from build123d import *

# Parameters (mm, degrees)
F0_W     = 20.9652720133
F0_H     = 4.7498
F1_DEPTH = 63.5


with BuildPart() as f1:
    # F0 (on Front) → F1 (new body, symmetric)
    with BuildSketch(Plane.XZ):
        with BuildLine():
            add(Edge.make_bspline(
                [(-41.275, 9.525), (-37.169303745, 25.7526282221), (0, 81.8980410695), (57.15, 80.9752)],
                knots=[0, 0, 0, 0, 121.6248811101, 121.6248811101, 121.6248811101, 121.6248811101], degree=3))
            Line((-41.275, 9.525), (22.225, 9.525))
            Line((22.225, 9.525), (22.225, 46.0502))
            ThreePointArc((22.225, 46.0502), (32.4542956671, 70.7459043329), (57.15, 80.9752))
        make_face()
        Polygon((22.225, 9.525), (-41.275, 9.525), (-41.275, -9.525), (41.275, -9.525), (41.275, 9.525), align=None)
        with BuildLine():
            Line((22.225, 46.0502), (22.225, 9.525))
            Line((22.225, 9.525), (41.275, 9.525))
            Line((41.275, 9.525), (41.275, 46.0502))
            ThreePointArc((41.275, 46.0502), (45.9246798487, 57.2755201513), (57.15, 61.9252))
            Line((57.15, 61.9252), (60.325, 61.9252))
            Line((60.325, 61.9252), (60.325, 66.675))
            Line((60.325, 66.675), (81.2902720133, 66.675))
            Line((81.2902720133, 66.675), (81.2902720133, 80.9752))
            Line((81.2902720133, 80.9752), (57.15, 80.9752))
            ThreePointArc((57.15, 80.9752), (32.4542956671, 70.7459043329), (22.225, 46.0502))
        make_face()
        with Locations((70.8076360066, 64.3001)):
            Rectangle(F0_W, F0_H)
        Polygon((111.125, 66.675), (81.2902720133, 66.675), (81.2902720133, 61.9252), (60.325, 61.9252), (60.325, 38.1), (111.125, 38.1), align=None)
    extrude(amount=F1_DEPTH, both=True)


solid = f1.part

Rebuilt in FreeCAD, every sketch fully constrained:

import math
import FreeCAD as App
import Part
import Sketcher
from FreeCAD import Vector
Q = App.Units.Quantity

doc = App.newDocument("Part")
params = doc.addObject("Spreadsheet::Sheet", "Params")
for row, (alias, value) in enumerate([
    ("sketch1_width", "2 in"),
    ("sketch1_radius", "0.625 in"),
    ("sketch1_height", "0.75 in"),
    ("sketch1_height2", "2.188 in"),
    ("sketch1_height3", "1.125 in"),
    ("pad1_length", "5 in"),
], start=1):
    params.set(f"A{row}", alias)
    params.set(f"B{row}", "=" + value)
    params.setAlias(f"B{row}", alias)

body = doc.addObject("PartDesign::Body", "Body")

# Sketch on XZ plane
sketch1 = doc.addObject("Sketcher::SketchObject", "Sketch")
body.addObject(sketch1)
sketch1.AttachmentSupport = (doc.XZ_Plane, [""])
sketch1.MapMode = "FlatFace"
sketch1.addGeometry(Part.BSplineCurve([Vector(-41.275, 9.525, 0), Vector(-37.169304, 25.752628, 0), Vector(0, 81.898041, 0), Vector(57.15, 80.9752, 0)], [4, 4], [0, 121.62488111], False, 3, [1, 1, 1, 1], False), False)
sketch1.addGeometry(Part.LineSegment(Vector(-41.275, 9.525, 0), Vector(-41.275, -9.525, 0)), False)
sketch1.addGeometry(Part.LineSegment(Vector(-41.275, -9.525, 0), Vector(41.275, -9.525, 0)), False)
sketch1.addGeometry(Part.LineSegment(Vector(41.275, -9.525, 0), Vector(41.275, 46.0502, 0)), False)
sketch1.addGeometry(Part.ArcOfCircle(Part.Circle(Vector(57.15, 46.0502, 0), Vector(0, 0, 1), 15.875), math.radians(90), math.radians(180)), False)
sketch1.addGeometry(Part.LineSegment(Vector(57.15, 61.9252, 0), Vector(60.325, 61.9252, 0)), False)
sketch1.addGeometry(Part.LineSegment(Vector(60.325, 61.9252, 0), Vector(60.325, 38.1, 0)), False)
sketch1.addGeometry(Part.LineSegment(Vector(60.325, 38.1, 0), Vector(111.125, 38.1, 0)), False)
sketch1.addGeometry(Part.LineSegment(Vector(111.125, 38.1, 0), Vector(111.125, 66.675, 0)), False)
sketch1.addGeometry(Part.LineSegment(Vector(111.125, 66.675, 0), Vector(81.290272, 66.675, 0)), False)
sketch1.addGeometry(Part.LineSegment(Vector(81.290272, 66.675, 0), Vector(81.290272, 80.9752, 0)), False)
sketch1.addGeometry(Part.LineSegment(Vector(81.290272, 80.9752, 0), Vector(57.15, 80.9752, 0)), False)
sketch1.addConstraint(Sketcher.Constraint("Block", 0))
sketch1.addConstraint(Sketcher.Constraint("Coincident", 0, 1, 1, 1))
sketch1.addConstraint(Sketcher.Constraint("Coincident", 1, 2, 2, 1))
sketch1.addConstraint(Sketcher.Constraint("Coincident", 2, 2, 3, 1))
sketch1.addConstraint(Sketcher.Constraint("Tangent", 3, 2, 4, 2))
sketch1.addConstraint(Sketcher.Constraint("Tangent", 4, 1, 5, 1))
sketch1.addConstraint(Sketcher.Constraint("Coincident", 5, 2, 6, 1))
sketch1.addConstraint(Sketcher.Constraint("Coincident", 6, 2, 7, 1))
sketch1.addConstraint(Sketcher.Constraint("Coincident", 7, 2, 8, 1))
sketch1.addConstraint(Sketcher.Constraint("Coincident", 8, 2, 9, 1))
sketch1.addConstraint(Sketcher.Constraint("Coincident", 9, 2, 10, 1))
sketch1.addConstraint(Sketcher.Constraint("Coincident", 10, 2, 11, 1))
sketch1.addConstraint(Sketcher.Constraint("Coincident", 11, 2, 0, 2))
sketch1.addConstraint(Sketcher.Constraint("Vertical", 1))
sketch1.addConstraint(Sketcher.Constraint("Horizontal", 2))
sketch1.addConstraint(Sketcher.Constraint("Vertical", 3))
sketch1.addConstraint(Sketcher.Constraint("Horizontal", 5))
sketch1.addConstraint(Sketcher.Constraint("Vertical", 6))
sketch1.addConstraint(Sketcher.Constraint("Horizontal", 7))
sketch1.addConstraint(Sketcher.Constraint("Vertical", 8))
sketch1.addConstraint(Sketcher.Constraint("Horizontal", 9))
sketch1.addConstraint(Sketcher.Constraint("Vertical", 10))
sketch1.addConstraint(Sketcher.Constraint("Horizontal", 11))
sketch1.addConstraint(Sketcher.Constraint("Vertical", 4, 1, 11, 2))
sketch1.addConstraint(Sketcher.Constraint("DistanceX", 7, 1, 7, 2, Q("2 in")))
sketch1.addConstraint(Sketcher.Constraint("Radius", 4, Q("0.625 in")))
sketch1.addConstraint(Sketcher.Constraint("DistanceX", 1, 2, 5, 2, Q("4 in")))
sketch1.addConstraint(Sketcher.Constraint("DistanceY", 1, 2, 1, 1, Q("0.75 in")))
sketch1.addConstraint(Sketcher.Constraint("DistanceY", -1, 1, 6, 2, Q("1.5 in")))
sketch1.addConstraint(Sketcher.Constraint("DistanceY", 3, 1, 3, 2, Q("2.188 in")))
sketch1.addConstraint(Sketcher.Constraint("DistanceY", 8, 1, 8, 2, Q("1.125 in")))
sketch1.addConstraint(Sketcher.Constraint("DistanceX", 9, 2, 9, 1, Q("29.834728 mm")))
sketch1.setExpression("Constraints[24]", "Params.sketch1_width")
sketch1.setExpression("Constraints[25]", "Params.sketch1_radius")
sketch1.setExpression("Constraints[27]", "Params.sketch1_height")
sketch1.setExpression("Constraints[29]", "Params.sketch1_height2")
sketch1.setExpression("Constraints[30]", "Params.sketch1_height3")
pad1 = doc.addObject("PartDesign::Pad", "Pad")
body.addObject(pad1)
pad1.Profile = sketch1
pad1.setExpression("Length", "Params.pad1_length")
pad1.Midplane = True

doc.recompute()
